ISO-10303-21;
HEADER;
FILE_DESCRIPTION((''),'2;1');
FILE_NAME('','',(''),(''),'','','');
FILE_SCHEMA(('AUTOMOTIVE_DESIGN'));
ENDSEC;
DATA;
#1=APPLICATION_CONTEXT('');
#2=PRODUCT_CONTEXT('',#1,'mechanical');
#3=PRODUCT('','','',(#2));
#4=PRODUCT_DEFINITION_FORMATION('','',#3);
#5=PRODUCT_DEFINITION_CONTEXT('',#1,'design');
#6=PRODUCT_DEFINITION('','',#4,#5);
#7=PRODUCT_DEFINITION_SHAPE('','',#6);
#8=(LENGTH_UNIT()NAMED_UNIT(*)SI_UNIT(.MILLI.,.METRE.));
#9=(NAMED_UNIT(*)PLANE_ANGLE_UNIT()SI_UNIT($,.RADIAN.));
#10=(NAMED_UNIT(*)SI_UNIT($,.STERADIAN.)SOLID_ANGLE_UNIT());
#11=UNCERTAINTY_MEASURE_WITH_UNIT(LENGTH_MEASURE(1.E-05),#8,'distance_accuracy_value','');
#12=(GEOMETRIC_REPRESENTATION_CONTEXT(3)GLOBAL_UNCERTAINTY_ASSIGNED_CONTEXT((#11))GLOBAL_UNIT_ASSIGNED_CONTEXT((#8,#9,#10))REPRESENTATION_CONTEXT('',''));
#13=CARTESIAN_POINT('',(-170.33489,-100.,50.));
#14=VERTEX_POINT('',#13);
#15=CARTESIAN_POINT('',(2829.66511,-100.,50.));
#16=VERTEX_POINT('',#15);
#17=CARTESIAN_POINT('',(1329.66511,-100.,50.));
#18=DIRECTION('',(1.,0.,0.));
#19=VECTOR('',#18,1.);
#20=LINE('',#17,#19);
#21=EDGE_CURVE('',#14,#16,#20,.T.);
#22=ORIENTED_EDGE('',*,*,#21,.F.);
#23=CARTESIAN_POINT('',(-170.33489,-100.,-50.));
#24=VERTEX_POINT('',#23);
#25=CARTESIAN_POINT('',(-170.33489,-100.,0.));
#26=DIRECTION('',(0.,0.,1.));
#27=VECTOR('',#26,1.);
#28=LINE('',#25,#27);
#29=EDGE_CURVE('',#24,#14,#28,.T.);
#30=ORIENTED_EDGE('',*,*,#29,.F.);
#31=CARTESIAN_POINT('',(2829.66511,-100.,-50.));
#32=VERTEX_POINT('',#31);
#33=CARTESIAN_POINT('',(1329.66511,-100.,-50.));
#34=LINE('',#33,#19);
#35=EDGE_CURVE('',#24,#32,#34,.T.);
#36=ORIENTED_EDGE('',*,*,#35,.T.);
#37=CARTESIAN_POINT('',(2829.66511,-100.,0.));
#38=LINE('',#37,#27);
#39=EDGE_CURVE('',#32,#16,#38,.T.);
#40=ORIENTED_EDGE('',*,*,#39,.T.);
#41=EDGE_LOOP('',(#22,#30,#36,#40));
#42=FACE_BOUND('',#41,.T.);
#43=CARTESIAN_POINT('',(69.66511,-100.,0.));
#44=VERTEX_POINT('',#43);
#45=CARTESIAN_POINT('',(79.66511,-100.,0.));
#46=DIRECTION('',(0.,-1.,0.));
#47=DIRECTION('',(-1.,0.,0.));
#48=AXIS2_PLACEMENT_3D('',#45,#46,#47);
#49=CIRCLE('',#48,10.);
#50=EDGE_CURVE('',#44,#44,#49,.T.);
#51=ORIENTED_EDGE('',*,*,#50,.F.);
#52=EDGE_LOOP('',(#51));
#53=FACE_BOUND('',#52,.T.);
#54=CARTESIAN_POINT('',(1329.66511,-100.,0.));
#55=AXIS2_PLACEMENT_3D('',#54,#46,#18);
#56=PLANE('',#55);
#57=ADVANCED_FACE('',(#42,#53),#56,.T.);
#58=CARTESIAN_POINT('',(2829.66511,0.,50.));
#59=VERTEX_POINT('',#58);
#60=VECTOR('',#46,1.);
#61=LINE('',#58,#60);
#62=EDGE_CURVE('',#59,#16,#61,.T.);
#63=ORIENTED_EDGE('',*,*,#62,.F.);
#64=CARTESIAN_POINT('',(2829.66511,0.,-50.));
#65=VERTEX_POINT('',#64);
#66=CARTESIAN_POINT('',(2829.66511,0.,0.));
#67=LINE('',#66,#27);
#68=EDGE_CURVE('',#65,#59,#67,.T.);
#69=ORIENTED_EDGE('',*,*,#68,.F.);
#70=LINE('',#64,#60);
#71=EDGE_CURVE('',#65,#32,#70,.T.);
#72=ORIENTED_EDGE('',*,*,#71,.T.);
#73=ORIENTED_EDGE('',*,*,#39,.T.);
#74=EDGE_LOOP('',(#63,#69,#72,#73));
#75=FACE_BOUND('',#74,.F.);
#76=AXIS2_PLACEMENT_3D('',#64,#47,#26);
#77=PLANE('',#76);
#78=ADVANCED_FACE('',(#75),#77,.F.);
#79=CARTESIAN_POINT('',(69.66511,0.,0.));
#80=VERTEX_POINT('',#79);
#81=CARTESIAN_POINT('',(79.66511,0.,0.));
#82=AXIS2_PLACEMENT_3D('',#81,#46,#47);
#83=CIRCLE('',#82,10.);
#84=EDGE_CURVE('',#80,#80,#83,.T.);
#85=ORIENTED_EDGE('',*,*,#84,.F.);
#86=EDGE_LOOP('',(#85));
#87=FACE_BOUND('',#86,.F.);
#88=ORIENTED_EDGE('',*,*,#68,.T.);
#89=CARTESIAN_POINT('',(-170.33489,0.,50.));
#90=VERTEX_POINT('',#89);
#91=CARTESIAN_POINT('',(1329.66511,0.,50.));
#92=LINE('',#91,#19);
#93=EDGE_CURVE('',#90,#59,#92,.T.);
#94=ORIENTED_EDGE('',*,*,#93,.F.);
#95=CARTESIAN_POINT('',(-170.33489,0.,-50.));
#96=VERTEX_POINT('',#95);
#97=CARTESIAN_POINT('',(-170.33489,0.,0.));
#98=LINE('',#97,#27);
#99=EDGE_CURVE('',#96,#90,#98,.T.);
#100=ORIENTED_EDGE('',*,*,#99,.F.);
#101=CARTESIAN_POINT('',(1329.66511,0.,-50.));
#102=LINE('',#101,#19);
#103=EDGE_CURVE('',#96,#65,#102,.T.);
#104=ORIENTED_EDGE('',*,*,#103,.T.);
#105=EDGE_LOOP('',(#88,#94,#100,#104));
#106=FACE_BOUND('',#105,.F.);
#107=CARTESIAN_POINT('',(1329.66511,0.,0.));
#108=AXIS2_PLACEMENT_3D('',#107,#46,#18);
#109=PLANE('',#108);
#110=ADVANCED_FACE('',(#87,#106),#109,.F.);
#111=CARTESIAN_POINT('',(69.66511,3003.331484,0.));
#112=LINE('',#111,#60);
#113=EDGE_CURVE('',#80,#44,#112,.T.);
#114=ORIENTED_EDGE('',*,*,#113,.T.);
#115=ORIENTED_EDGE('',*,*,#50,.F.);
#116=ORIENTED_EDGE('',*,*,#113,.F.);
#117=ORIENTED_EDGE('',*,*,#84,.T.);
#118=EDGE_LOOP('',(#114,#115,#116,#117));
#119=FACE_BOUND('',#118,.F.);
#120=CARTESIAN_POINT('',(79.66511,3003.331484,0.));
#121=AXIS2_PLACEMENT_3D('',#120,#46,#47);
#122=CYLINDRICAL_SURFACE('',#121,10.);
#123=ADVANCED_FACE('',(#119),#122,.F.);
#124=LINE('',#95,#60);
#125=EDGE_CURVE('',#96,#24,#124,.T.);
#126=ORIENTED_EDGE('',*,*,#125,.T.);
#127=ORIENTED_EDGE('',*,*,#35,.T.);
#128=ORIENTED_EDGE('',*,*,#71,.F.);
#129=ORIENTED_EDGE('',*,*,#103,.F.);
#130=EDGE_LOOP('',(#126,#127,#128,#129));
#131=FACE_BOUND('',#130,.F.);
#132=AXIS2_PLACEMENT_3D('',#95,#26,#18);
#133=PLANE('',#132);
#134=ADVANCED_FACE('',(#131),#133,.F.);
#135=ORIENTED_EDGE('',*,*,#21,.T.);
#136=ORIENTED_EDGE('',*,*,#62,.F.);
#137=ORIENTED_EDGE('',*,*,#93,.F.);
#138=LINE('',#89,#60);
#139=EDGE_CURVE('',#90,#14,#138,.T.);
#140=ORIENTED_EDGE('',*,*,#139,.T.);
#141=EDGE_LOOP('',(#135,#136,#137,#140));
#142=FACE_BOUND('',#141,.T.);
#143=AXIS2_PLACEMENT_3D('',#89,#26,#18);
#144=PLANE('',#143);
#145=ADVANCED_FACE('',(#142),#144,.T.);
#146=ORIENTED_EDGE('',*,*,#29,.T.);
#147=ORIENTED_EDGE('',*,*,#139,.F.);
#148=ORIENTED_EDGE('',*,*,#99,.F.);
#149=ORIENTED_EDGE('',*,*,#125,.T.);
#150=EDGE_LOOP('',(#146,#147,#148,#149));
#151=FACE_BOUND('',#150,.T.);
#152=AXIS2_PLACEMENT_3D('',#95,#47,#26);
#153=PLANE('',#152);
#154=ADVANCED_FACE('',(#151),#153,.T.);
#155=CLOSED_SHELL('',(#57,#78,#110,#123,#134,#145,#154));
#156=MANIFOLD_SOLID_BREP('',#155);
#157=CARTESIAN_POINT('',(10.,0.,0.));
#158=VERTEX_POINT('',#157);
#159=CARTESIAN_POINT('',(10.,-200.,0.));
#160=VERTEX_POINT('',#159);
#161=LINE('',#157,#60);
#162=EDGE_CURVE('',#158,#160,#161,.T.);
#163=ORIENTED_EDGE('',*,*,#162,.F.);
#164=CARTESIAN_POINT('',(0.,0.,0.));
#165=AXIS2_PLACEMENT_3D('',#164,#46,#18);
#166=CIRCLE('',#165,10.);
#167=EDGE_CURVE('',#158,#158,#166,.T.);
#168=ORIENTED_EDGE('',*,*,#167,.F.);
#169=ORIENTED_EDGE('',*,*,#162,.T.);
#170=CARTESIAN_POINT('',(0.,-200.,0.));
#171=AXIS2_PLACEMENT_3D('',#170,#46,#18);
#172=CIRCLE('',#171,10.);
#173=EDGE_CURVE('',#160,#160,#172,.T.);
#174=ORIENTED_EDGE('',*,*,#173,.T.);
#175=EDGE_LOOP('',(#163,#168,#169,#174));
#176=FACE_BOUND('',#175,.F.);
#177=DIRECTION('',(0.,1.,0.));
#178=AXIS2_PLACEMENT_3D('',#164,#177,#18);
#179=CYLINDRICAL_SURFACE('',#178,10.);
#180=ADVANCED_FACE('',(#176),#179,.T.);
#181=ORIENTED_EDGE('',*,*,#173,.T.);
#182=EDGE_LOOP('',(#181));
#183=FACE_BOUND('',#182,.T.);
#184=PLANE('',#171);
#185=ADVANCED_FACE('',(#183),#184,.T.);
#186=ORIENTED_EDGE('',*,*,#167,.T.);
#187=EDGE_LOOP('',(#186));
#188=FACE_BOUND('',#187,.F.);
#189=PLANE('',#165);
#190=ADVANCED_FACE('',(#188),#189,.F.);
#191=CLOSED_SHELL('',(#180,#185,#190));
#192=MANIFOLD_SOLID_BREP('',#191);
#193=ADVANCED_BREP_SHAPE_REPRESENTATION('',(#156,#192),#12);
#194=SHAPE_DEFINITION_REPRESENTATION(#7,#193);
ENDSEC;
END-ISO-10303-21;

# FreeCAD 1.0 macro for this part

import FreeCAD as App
import Part
import Sketcher
Q = App.Units.Quantity


def add_polygon(sketch, points):
    """Adds a closed chain of lines whose ends are joined by coincident constraints."""
    first, n = sketch.GeometryCount, len(points)
    for a, b in zip(points, points[1:] + points[:1]):
        sketch.addGeometry(Part.LineSegment(App.Vector(*a, 0), App.Vector(*b, 0)), False)
    for i in range(n):
        sketch.addConstraint(Sketcher.Constraint("Coincident", first + i, 2, first + (i + 1) % n, 1))

doc = App.newDocument("Part")
body = doc.addObject("PartDesign::Body", "Body")

# Sketch on XZ plane
sketch1 = body.newObject("Sketcher::SketchObject", "Sketch")
sketch1.AttachmentSupport = (doc.getObject("XZ_Plane"), [""])
sketch1.MapMode = "FlatFace"
add_polygon(sketch1, [(-170, 50), (-170, -50), (2830, -50), (2830, 50)])  # lines 0-3
sketch1.addConstraint([
    Sketcher.Constraint("Vertical", 0),
    Sketcher.Constraint("Horizontal", 1),
    Sketcher.Constraint("Vertical", 2),
    Sketcher.Constraint("Horizontal", 3),
    Sketcher.Constraint("DistanceX", 1, 1, 1, 2, Q("3000 mm")),
    Sketcher.Constraint("DistanceY", 0, 2, 0, 1, Q("100 mm")),
    Sketcher.Constraint("DistanceY", 0, 2, -1, 1, Q("50 mm")),
    Sketcher.Constraint("DistanceX", 0, 2, -1, 1, Q("170.33489 mm")),
])
pad1 = body.newObject("PartDesign::Pad", "Pad")
pad1.Profile = sketch1
pad1.Length = 100

# Sketch on XZ plane
sketch2 = body.newObject("Sketcher::SketchObject", "Sketch001")
sketch2.AttachmentSupport = (doc.getObject("XZ_Plane"), [""])
sketch2.MapMode = "FlatFace"
sketch2.addGeometry(Part.Circle(App.Vector(80, 0, 0), App.Vector(0, 0, 1), 10), False)
sketch2.addConstraint([
    Sketcher.Constraint("PointOnObject", 0, 3, -1),
    Sketcher.Constraint("Diameter", 0, Q("20 mm")),
    Sketcher.Constraint("DistanceX", -1, 1, 0, 3, Q("79.66511 mm")),
])
doc.recompute()
hole = body.newObject("PartDesign::Hole", "Hole")
hole.Profile = sketch2
hole.ThreadType = "None"
hole.Diameter = 20
hole.DepthType = "ThroughAll"
hole.Reversed = True
body2 = doc.addObject("PartDesign::Body", "Body001")

# Sketch on XZ plane
sketch3 = body2.newObject("Sketcher::SketchObject", "Sketch002")
sketch3.AttachmentSupport = (doc.getObject("XZ_Plane001"), [""])
sketch3.MapMode = "FlatFace"
sketch3.addGeometry(Part.Circle(App.Vector(0, 0, 0), App.Vector(0, 0, 1), 10), False)
sketch3.addConstraint([
    Sketcher.Constraint("Coincident", 0, 3, -1, 1),
    Sketcher.Constraint("Diameter", 0, Q("20 mm")),
])
pad2 = body2.newObject("PartDesign::Pad", "Pad001")
pad2.Profile = sketch3
pad2.Length = 200

doc.recompute()
